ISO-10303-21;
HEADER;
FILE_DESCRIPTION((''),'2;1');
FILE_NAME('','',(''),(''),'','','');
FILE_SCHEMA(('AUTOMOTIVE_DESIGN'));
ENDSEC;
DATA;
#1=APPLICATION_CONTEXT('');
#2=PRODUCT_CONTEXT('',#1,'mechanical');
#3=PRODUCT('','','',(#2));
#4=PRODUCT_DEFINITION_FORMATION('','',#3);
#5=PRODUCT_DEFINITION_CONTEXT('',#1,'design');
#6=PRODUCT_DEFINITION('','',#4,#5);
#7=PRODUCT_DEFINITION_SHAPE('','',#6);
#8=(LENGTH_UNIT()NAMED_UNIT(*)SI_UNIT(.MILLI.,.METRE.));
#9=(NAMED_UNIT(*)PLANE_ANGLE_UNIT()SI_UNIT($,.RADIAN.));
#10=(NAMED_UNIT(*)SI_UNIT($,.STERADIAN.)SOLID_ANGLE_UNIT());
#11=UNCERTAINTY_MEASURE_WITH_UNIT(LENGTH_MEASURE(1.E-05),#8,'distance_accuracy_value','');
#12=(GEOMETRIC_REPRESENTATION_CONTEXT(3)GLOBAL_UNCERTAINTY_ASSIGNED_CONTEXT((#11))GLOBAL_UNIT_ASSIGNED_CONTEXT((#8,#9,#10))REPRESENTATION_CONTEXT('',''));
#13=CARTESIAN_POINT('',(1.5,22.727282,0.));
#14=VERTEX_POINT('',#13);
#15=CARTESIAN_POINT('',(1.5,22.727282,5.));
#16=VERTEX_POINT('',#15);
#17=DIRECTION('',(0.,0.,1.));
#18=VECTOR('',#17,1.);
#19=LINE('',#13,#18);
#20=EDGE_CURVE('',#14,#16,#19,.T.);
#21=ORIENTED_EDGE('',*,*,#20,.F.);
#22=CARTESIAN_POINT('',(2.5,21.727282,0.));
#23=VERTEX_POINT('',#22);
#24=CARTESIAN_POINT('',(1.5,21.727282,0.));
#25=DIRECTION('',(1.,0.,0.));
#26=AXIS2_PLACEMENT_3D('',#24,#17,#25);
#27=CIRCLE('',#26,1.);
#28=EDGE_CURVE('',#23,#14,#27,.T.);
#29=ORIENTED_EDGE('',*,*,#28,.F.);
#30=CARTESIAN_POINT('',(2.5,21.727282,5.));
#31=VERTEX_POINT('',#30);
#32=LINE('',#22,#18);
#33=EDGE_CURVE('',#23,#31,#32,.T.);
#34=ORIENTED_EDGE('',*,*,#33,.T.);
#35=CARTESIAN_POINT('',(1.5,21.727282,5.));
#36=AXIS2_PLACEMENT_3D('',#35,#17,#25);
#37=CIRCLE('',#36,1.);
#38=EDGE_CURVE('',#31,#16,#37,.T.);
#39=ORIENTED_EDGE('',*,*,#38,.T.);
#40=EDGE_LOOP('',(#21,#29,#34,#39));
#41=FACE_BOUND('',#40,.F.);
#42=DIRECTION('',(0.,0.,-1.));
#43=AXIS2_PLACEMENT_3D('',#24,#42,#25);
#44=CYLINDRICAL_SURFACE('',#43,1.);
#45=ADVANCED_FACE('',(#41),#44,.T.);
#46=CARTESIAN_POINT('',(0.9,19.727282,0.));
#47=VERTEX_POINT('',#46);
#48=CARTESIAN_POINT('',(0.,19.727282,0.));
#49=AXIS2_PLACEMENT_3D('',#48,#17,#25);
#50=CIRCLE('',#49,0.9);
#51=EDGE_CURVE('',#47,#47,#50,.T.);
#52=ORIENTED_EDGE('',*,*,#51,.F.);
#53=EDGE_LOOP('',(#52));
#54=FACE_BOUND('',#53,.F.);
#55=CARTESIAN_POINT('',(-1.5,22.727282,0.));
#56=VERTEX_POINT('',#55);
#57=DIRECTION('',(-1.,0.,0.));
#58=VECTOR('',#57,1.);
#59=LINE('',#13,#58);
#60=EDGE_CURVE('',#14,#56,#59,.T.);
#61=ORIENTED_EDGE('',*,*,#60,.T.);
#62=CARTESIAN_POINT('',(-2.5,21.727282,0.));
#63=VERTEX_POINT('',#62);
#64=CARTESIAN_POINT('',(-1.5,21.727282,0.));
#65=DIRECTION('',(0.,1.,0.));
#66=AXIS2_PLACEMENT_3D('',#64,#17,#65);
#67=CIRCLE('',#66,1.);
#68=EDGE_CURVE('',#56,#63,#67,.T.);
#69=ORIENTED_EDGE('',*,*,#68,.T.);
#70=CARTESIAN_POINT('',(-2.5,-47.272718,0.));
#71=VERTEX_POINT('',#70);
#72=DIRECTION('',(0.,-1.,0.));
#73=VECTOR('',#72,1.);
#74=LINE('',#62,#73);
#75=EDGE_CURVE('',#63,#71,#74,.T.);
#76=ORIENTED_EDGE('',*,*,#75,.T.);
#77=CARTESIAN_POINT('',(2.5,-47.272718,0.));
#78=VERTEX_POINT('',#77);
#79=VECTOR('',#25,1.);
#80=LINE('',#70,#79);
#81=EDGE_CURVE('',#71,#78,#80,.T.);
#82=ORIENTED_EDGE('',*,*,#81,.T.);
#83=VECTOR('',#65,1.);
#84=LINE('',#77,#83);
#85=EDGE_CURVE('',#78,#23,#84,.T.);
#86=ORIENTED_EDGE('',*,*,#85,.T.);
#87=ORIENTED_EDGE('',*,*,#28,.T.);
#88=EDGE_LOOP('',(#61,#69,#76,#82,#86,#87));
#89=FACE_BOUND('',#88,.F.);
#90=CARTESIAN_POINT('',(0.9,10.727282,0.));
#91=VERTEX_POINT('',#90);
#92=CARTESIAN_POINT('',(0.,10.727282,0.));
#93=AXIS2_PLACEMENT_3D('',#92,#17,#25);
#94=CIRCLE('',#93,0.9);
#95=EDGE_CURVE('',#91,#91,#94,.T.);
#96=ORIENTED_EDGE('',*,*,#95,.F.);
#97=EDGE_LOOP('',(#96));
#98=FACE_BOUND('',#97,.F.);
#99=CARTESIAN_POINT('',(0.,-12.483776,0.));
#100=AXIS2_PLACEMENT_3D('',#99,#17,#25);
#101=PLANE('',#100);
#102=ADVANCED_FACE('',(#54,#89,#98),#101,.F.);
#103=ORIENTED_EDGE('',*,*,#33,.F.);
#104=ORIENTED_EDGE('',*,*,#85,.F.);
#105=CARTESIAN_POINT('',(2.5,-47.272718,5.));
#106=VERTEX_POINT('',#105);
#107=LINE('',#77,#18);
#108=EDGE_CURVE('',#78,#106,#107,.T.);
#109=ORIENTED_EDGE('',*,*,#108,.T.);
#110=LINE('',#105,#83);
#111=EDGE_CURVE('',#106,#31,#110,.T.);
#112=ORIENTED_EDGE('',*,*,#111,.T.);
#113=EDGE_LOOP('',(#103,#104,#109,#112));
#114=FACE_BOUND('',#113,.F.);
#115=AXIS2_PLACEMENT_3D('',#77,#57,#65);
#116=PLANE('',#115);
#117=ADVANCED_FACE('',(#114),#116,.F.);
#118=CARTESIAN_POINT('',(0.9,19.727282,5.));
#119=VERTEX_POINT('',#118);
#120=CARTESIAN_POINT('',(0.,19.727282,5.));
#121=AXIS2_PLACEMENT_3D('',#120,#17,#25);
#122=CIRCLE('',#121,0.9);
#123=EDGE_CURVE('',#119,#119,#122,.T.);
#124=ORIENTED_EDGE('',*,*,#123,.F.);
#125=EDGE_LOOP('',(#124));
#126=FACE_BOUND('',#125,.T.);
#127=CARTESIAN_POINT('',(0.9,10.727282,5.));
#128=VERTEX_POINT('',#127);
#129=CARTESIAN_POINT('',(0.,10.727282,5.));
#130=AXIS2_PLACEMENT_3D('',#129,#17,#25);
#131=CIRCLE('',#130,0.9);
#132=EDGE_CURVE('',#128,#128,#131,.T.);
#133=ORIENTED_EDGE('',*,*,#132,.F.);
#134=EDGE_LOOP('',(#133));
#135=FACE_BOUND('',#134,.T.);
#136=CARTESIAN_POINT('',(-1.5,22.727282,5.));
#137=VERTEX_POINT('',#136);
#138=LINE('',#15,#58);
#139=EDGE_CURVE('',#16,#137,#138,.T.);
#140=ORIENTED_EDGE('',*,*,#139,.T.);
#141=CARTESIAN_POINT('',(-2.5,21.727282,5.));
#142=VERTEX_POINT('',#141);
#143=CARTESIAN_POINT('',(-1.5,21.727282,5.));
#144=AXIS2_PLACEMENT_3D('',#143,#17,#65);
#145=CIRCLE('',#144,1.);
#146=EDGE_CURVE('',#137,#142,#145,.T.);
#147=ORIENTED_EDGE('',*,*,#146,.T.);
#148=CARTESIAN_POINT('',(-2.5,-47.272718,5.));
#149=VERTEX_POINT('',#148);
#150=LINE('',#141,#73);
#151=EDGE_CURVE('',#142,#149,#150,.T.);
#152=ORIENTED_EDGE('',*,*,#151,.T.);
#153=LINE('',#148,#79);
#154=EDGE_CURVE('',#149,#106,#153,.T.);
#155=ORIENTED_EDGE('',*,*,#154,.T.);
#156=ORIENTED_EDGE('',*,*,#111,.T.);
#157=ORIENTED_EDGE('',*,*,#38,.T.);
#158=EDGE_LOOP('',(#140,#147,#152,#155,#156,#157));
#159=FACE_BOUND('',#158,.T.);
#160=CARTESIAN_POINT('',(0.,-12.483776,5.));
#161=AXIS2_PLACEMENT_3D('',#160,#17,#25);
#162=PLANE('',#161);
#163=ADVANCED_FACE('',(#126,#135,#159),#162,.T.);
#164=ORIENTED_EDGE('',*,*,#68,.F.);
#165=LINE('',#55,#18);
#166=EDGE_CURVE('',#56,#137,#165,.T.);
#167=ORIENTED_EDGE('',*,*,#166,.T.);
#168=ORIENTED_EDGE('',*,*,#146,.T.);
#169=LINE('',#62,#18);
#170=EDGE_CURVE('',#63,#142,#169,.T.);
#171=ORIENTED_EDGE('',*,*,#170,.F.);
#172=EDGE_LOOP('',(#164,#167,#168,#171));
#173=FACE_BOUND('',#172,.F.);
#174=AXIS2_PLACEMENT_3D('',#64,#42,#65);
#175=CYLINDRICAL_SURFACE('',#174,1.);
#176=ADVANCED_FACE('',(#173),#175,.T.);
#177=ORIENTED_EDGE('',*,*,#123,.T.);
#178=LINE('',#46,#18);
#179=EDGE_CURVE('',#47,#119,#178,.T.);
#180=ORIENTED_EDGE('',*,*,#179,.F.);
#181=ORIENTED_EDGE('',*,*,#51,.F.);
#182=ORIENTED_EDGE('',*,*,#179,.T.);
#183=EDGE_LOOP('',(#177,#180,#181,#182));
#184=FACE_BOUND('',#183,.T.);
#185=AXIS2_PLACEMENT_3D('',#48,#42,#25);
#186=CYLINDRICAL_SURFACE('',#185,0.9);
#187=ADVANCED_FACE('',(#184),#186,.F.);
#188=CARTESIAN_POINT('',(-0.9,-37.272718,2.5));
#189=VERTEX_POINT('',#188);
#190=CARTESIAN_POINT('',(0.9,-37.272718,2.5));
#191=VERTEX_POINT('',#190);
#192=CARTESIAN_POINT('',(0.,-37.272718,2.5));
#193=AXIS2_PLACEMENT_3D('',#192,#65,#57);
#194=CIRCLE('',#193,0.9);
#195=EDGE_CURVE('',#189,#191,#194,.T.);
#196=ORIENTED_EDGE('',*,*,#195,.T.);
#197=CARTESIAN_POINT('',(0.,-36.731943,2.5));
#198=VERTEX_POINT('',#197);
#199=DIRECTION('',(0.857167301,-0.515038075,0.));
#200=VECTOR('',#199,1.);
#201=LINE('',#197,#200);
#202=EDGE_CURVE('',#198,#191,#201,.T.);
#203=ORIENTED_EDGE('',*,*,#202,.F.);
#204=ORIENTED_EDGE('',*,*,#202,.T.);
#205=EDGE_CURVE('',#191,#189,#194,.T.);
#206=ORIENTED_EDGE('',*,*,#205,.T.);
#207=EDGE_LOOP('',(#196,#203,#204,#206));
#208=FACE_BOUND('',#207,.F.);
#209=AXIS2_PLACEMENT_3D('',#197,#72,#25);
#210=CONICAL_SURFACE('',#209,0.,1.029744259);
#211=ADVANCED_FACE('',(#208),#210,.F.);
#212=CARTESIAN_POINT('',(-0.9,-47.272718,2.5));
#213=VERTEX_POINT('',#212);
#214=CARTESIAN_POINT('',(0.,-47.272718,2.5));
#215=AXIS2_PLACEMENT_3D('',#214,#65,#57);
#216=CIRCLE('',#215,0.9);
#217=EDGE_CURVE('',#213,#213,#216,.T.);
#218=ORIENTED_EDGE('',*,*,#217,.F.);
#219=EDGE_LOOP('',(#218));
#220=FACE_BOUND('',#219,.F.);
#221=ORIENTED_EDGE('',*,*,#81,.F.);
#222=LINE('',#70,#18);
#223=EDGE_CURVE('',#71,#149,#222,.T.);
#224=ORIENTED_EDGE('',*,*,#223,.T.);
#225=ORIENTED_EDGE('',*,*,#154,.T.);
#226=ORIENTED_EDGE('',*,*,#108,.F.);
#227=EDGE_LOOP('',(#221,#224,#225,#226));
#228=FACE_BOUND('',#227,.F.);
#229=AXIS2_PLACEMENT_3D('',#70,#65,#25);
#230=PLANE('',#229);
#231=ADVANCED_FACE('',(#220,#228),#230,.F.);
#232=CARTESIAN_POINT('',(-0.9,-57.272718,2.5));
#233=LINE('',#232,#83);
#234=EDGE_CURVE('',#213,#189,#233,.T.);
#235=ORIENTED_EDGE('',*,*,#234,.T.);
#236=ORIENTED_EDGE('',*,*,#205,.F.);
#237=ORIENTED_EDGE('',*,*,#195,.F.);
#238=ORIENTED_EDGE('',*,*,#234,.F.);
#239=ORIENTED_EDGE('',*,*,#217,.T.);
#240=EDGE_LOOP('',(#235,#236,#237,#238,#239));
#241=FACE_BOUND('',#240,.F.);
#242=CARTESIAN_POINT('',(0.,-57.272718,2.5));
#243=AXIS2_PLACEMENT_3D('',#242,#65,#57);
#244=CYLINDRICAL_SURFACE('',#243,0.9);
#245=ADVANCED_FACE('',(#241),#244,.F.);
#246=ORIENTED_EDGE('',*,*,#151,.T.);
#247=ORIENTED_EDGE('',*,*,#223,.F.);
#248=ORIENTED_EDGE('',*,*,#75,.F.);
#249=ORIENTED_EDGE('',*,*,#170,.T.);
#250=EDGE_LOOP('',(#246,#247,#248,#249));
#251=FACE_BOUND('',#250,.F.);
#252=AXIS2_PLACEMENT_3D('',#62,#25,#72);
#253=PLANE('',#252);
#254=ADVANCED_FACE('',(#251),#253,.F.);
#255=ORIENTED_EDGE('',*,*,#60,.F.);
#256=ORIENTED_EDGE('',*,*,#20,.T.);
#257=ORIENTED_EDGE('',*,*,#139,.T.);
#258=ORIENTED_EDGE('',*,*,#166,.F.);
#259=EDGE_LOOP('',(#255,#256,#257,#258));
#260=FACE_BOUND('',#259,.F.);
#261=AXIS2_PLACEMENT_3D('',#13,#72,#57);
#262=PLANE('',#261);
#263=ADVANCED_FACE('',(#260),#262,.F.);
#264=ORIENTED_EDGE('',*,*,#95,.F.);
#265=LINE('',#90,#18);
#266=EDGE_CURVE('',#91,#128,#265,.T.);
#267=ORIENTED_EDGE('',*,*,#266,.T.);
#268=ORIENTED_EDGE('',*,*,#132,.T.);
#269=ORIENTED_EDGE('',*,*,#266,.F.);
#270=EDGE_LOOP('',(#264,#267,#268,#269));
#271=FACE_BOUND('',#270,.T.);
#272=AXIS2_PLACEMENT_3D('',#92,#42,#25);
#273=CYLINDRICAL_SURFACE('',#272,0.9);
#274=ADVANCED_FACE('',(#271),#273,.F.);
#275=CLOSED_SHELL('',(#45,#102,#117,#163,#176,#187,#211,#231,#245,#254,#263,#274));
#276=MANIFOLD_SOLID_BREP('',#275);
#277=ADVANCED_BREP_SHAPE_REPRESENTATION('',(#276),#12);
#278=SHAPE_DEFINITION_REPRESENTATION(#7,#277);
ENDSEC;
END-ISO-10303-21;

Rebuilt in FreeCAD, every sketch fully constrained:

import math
import FreeCAD as App
import Part
import Sketcher

doc = App.newDocument("Part")
params = doc.addObject("Spreadsheet::Sheet", "Params")
for row, (alias, value) in enumerate([
    ("sketch1_radius", "1 mm"),
    ("sketch1_diameter", "1.8 mm"),
    ("sketch1_width", "3 mm"),
    ("sketch1_height", "69 mm"),
    ("pad1_length", "5 mm"),
    ("sketch2_diameter", "1.8 mm"),
    ("hole_diameter", "1.8 mm"),
    ("hole_depth", "10 mm"),
], start=1):
    params.set(f"A{row}", alias)
    params.set(f"B{row}", "=" + value)
    params.setAlias(f"B{row}", alias)

body = doc.addObject("PartDesign::Body", "Body")

sketch1 = body.newObject("Sketcher::SketchObject", "Sketch")
sketch1.AttachmentSupport = (doc.getObject("XY_Plane"), [""])
sketch1.MapMode = "FlatFace"
sketch1.addGeometry([
    Part.ArcOfCircle(Part.Circle(App.Vector(1.5, 21.7, 0), App.Vector(0, 0, 1), 1), math.radians(0), math.radians(90)),
    Part.LineSegment(App.Vector(1.5, 22.7, 0), App.Vector(-1.5, 22.7, 0)),
    Part.ArcOfCircle(Part.Circle(App.Vector(-1.5, 21.7, 0), App.Vector(0, 0, 1), 1), math.radians(90), math.radians(180)),
    Part.LineSegment(App.Vector(-2.5, 21.7, 0), App.Vector(-2.5, -47.3, 0)),
    Part.LineSegment(App.Vector(-2.5, -47.3, 0), App.Vector(2.5, -47.3, 0)),
    Part.LineSegment(App.Vector(2.5, -47.3, 0), App.Vector(2.5, 21.7, 0)),
    Part.Circle(App.Vector(0, 10.7, 0), App.Vector(0, 0, 1), 0.9),
    Part.Circle(App.Vector(0, 19.7, 0), App.Vector(0, 0, 1), 0.9),
], False)
sketch1.addConstraint([
    Sketcher.Constraint("Tangent", 0, 2, 1, 1),
    Sketcher.Constraint("Tangent", 1, 2, 2, 1),
    Sketcher.Constraint("Tangent", 2, 2, 3, 1),
    Sketcher.Constraint("Coincident", 3, 2, 4, 1),
    Sketcher.Constraint("Coincident", 4, 2, 5, 1),
    Sketcher.Constraint("Tangent", 5, 2, 0, 1),
    Sketcher.Constraint("Horizontal", 1),
    Sketcher.Constraint("Vertical", 3),
    Sketcher.Constraint("Horizontal", 4),
    Sketcher.Constraint("Vertical", 5),
    Sketcher.Constraint("Equal", 0, 2),
    Sketcher.Constraint("Equal", 6, 7),
    Sketcher.Constraint("PointOnObject", 6, 3, -2),
    Sketcher.Constraint("PointOnObject", 7, 3, -2),
    Sketcher.Constraint("Radius", 0, 1.0),
    Sketcher.Constraint("Diameter", 6, 1.8),
    Sketcher.Constraint("DistanceX", 1, 2, 1, 1, 3.0),
    Sketcher.Constraint("DistanceY", 3, 2, 3, 1, 69.0),
    Sketcher.Constraint("DistanceY", 6, 3, 0, 3, 11.0),
    Sketcher.Constraint("DistanceY", 7, 3, 0, 3, 2.0),
    Sketcher.Constraint("DistanceX", -1, 1, 0, 3, 1.5),
    Sketcher.Constraint("DistanceY", -1, 1, 0, 3, 21.727282),
])
sketch1.setExpression("Constraints[14]", "Params.sketch1_radius")
sketch1.setExpression("Constraints[15]", "Params.sketch1_diameter")
sketch1.setExpression("Constraints[16]", "Params.sketch1_width")
sketch1.setExpression("Constraints[17]", "Params.sketch1_height")
pad1 = body.newObject("PartDesign::Pad", "Pad")
pad1.Profile = sketch1
pad1.setExpression("Length", "Params.pad1_length")

sketch2 = body.newObject("Sketcher::SketchObject", "Sketch001")
sketch2.AttachmentSupport = (doc.getObject("XZ_Plane"), [""])
sketch2.MapMode = "FlatFace"
sketch2.AttachmentOffset = App.Placement(App.Vector(0, 0, 47.272718), App.Rotation())
sketch2.addGeometry(Part.Circle(App.Vector(0, 2.5, 0), App.Vector(0, 0, 1), 0.9), False)
sketch2.addConstraint([
    Sketcher.Constraint("PointOnObject", 0, 3, -2),
    Sketcher.Constraint("Diameter", 0, 1.8),
    Sketcher.Constraint("DistanceY", -1, 1, 0, 3, 2.5),
])
sketch2.setExpression("Constraints[1]", "Params.sketch2_diameter")
doc.recompute()
hole = body.newObject("PartDesign::Hole", "Hole")
hole.Profile = sketch2
hole.ThreadType = "None"
hole.setExpression("Diameter", "Params.hole_diameter")
hole.DepthType = "Dimension"
hole.setExpression("Depth", "Params.hole_depth")
hole.DrillPoint = "Angled"
hole.DrillPointAngle = 118

doc.recompute()
